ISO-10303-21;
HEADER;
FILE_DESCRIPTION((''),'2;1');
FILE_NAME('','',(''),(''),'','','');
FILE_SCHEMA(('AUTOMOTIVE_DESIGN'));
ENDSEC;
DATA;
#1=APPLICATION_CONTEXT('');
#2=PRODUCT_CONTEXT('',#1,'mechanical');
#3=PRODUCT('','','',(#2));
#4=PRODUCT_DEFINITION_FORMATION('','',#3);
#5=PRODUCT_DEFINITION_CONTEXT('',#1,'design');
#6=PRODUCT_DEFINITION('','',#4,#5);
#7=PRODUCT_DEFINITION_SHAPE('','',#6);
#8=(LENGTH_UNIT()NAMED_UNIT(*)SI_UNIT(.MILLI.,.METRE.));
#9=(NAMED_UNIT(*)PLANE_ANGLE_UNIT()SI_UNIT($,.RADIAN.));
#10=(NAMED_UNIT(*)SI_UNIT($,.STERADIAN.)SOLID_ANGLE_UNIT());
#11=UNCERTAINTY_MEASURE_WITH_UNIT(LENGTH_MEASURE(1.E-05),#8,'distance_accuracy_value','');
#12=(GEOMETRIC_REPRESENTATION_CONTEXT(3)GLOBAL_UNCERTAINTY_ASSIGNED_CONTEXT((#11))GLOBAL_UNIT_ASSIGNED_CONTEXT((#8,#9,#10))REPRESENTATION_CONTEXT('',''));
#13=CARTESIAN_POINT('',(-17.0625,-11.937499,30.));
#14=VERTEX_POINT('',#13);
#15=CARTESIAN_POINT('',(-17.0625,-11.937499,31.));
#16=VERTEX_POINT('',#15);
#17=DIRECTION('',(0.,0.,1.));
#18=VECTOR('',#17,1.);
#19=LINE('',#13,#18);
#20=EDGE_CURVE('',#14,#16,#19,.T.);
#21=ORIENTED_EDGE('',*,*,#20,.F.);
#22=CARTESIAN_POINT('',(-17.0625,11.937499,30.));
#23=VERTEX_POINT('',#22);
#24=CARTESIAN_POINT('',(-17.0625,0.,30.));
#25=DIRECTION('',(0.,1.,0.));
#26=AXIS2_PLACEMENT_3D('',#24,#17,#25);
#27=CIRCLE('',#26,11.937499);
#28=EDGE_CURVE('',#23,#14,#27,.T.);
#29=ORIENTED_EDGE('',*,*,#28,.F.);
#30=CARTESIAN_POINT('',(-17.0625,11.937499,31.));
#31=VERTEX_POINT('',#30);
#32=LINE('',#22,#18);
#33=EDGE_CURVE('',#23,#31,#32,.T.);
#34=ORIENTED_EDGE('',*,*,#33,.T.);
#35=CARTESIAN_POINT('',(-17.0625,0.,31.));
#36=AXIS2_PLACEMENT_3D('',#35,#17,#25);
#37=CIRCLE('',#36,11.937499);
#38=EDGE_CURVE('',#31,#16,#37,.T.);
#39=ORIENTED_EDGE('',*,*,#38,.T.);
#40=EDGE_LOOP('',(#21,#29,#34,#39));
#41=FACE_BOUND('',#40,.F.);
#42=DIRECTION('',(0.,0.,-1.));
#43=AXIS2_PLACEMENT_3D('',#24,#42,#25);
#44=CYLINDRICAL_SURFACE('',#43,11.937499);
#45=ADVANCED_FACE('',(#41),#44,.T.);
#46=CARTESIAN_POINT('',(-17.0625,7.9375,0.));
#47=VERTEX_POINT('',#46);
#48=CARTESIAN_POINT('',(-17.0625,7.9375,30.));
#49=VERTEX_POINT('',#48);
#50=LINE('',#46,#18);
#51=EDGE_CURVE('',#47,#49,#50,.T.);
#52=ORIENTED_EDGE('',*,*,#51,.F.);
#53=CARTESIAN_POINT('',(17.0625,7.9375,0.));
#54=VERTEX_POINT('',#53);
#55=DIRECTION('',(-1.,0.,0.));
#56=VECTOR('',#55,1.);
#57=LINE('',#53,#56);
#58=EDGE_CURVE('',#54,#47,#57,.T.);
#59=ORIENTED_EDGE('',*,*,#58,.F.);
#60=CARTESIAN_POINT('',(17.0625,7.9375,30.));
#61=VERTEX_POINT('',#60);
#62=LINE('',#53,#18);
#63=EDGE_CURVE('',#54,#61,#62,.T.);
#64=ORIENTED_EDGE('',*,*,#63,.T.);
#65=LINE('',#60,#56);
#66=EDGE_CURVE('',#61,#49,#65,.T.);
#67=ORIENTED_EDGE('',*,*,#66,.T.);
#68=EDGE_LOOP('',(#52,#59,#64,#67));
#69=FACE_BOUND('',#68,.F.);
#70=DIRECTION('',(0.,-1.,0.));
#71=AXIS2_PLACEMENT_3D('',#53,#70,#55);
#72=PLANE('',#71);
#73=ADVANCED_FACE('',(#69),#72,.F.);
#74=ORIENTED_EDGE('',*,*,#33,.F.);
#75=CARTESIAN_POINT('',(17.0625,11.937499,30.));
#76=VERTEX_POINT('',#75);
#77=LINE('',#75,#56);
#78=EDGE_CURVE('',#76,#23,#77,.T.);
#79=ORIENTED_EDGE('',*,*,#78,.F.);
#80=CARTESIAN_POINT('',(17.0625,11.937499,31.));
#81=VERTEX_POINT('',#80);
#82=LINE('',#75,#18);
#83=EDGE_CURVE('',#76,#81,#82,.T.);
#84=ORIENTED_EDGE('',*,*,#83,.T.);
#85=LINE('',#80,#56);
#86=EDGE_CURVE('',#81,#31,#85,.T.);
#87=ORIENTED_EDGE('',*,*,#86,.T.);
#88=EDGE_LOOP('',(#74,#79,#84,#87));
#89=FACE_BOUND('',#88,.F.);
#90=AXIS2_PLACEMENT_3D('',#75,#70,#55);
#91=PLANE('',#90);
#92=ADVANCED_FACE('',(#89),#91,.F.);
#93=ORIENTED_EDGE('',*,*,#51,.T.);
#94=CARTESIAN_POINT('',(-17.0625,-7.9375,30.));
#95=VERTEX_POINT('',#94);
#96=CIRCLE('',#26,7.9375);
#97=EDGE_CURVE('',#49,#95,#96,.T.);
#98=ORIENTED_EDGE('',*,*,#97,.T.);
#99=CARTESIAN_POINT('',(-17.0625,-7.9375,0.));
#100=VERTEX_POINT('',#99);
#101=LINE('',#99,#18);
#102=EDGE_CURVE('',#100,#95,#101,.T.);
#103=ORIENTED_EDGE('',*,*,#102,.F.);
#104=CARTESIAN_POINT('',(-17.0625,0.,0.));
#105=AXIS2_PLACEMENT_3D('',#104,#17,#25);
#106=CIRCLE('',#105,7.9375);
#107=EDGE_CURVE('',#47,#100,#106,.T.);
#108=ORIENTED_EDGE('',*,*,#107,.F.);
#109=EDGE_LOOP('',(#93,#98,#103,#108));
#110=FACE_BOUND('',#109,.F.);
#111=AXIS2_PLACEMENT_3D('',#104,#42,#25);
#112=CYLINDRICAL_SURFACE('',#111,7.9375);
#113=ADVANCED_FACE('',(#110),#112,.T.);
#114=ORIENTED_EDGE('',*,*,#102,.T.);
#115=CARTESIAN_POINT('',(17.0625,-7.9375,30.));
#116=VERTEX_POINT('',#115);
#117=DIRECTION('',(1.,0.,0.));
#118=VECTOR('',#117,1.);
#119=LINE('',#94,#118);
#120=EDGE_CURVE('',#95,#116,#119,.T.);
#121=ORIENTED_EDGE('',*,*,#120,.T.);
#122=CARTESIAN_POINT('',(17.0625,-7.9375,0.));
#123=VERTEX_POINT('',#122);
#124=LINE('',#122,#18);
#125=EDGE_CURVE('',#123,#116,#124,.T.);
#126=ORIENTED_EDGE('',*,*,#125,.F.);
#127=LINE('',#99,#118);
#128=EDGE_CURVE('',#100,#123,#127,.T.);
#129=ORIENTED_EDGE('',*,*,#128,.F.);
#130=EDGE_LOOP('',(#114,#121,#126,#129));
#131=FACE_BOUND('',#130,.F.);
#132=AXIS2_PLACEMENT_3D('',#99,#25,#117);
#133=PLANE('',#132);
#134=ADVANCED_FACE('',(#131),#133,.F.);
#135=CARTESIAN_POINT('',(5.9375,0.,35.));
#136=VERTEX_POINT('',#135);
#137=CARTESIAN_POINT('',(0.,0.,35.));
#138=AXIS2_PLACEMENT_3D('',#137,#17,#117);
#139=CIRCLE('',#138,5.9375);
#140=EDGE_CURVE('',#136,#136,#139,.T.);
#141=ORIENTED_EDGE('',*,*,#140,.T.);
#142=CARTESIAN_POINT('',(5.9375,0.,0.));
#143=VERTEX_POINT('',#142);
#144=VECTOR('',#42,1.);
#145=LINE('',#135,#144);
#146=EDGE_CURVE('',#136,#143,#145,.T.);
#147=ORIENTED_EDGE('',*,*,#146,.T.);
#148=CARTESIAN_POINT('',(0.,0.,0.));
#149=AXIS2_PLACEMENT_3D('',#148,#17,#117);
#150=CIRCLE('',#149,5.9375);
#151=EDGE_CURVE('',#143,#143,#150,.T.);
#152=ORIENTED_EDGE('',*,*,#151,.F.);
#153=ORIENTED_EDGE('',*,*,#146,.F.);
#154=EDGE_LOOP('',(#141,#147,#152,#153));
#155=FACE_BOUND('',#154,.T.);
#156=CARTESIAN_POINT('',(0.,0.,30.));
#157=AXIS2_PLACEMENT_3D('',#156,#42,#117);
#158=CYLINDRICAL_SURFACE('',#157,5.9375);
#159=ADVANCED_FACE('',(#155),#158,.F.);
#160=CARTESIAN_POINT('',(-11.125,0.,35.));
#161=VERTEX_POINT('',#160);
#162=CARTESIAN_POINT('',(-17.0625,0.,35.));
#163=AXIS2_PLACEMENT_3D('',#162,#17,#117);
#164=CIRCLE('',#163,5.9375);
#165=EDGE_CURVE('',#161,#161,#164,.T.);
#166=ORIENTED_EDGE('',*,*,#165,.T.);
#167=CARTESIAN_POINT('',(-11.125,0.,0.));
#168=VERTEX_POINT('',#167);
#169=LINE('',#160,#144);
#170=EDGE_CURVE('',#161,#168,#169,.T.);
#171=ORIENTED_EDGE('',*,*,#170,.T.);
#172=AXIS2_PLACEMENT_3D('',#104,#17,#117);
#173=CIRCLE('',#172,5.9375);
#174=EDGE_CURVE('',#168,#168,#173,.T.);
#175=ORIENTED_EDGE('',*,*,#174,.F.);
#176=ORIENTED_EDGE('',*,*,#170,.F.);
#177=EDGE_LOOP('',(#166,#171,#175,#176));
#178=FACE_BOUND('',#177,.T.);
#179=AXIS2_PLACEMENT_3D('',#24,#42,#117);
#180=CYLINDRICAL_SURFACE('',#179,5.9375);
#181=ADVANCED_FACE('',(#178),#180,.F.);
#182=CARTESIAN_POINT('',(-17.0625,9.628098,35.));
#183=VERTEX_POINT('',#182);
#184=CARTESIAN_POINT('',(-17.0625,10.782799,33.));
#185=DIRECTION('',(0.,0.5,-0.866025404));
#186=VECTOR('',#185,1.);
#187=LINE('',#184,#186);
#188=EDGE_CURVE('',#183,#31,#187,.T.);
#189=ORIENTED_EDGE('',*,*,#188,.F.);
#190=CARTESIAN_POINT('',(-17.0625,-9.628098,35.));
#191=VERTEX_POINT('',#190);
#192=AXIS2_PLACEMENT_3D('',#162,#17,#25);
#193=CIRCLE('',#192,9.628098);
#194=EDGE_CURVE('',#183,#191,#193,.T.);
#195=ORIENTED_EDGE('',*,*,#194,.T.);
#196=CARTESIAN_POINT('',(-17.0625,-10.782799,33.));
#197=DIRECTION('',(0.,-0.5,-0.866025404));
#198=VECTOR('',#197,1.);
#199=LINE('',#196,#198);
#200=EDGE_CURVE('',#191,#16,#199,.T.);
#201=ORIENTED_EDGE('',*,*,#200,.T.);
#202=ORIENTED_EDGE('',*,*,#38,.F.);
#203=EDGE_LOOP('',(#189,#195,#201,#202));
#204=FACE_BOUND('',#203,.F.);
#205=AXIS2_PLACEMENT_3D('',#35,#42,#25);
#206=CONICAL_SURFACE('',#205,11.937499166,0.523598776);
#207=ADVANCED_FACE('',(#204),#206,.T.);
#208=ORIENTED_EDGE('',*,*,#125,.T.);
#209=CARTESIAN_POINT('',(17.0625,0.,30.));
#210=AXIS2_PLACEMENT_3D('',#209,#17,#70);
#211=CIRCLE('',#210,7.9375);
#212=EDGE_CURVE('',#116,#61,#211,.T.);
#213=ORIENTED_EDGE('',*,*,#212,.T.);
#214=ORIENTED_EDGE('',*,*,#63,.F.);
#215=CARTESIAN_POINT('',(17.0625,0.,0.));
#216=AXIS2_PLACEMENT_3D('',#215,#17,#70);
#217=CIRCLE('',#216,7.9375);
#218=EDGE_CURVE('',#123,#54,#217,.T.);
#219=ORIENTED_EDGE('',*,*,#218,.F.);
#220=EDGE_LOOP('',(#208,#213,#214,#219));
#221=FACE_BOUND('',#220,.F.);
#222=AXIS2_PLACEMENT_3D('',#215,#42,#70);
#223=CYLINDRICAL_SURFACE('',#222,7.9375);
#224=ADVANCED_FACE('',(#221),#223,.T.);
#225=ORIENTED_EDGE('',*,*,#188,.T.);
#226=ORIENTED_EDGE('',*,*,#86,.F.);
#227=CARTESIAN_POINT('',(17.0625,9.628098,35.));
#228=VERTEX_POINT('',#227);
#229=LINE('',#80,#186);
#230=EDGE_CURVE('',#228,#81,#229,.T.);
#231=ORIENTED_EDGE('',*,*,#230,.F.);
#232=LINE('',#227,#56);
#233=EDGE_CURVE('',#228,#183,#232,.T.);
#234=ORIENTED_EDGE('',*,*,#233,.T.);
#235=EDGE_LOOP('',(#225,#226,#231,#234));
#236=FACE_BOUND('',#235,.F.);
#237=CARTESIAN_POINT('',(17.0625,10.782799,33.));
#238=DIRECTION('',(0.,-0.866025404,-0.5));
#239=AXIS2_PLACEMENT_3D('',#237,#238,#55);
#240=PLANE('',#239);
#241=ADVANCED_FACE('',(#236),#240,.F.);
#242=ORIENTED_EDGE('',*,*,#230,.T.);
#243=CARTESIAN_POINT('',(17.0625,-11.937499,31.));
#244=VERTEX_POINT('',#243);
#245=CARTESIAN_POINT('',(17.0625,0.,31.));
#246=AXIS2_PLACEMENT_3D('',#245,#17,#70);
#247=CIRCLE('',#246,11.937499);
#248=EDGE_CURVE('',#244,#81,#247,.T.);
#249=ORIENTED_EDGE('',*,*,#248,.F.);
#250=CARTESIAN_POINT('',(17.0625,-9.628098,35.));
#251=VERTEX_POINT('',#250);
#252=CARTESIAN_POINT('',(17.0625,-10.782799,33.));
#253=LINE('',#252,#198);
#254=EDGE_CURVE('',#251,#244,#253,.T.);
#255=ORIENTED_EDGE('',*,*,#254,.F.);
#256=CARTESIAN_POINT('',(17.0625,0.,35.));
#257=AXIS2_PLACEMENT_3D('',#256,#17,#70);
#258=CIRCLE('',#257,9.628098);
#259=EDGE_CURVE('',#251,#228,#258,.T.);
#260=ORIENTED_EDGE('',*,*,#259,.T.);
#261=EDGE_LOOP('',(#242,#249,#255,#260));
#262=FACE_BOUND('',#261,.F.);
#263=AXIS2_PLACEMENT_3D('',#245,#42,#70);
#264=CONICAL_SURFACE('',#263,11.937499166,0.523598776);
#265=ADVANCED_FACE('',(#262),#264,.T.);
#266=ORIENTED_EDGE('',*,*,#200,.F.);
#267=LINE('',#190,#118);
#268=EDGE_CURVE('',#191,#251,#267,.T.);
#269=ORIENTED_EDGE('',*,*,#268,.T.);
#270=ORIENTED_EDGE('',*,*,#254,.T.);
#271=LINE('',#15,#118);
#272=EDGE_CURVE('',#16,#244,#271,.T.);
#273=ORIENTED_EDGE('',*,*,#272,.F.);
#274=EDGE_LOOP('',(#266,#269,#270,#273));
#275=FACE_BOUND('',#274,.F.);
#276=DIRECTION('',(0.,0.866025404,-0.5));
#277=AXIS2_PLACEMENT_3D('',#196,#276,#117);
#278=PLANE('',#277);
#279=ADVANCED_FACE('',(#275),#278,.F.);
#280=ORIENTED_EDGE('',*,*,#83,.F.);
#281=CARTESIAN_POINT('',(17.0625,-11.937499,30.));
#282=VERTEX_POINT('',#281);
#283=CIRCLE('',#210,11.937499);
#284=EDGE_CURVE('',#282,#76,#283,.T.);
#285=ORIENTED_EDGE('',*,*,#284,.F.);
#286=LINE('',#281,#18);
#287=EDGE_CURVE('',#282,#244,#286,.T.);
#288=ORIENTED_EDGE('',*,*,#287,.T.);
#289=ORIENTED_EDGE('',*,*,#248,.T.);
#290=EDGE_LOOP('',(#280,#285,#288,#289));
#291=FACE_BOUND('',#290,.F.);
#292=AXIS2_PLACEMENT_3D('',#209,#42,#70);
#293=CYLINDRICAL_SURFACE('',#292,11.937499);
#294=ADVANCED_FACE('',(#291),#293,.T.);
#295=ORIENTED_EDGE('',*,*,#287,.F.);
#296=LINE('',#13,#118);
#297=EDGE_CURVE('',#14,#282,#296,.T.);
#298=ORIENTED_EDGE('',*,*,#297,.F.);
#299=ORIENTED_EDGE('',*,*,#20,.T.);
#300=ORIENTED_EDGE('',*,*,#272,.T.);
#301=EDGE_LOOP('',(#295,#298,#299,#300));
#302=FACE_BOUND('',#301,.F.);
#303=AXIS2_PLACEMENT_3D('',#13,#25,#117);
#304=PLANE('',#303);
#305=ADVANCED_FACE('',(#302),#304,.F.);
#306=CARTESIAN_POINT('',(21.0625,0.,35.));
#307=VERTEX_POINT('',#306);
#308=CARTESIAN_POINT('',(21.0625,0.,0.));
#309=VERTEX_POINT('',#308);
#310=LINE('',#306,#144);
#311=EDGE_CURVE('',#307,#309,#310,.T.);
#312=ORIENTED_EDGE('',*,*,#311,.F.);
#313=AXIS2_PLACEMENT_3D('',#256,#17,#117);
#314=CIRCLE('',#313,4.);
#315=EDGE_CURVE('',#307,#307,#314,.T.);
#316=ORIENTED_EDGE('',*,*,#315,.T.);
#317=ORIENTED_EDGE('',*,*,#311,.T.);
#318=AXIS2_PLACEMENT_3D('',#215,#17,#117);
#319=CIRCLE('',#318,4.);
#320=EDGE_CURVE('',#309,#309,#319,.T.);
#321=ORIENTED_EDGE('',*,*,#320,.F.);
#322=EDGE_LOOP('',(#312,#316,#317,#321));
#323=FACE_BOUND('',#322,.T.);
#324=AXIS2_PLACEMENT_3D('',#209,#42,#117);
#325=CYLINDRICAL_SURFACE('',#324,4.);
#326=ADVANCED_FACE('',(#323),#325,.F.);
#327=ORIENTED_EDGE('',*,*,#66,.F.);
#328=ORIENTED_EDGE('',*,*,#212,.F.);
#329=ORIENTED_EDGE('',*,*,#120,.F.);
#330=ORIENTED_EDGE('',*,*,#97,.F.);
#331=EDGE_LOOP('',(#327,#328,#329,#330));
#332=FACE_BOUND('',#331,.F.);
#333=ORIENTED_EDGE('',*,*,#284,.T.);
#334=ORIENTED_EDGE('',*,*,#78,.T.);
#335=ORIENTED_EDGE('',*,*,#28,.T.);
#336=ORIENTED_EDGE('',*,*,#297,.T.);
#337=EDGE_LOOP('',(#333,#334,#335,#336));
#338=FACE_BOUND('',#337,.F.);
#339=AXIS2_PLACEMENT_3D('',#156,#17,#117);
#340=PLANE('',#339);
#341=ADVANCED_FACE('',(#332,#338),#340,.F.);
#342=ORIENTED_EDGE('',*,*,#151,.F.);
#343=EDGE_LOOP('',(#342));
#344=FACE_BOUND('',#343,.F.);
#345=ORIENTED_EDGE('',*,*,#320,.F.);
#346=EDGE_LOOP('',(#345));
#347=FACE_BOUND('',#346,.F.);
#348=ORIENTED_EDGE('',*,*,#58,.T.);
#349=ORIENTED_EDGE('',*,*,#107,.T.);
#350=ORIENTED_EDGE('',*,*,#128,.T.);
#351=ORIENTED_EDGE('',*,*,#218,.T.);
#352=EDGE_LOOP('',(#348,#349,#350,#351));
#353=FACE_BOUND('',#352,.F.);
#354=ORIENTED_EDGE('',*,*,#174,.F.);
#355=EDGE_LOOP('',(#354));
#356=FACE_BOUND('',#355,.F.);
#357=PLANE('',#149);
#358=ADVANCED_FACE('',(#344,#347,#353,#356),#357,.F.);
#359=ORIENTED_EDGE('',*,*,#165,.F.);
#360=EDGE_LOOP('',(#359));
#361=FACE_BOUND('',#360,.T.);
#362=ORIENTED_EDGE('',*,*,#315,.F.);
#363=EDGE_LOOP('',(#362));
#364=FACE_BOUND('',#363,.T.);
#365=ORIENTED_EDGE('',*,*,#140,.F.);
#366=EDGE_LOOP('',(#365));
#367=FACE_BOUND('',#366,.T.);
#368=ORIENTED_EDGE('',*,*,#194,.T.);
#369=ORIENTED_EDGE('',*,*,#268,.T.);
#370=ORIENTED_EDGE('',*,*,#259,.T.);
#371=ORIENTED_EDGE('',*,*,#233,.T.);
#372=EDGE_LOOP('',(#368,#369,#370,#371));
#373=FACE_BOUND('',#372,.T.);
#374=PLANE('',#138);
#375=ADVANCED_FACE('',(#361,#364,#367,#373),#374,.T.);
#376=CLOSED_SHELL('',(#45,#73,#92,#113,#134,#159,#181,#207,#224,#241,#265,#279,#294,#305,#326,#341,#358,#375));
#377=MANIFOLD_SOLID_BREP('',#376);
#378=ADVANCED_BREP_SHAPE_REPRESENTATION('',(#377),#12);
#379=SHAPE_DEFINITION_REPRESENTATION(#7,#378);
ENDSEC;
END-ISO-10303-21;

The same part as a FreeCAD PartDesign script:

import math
import FreeCAD as App
import Part
import Sketcher
Q = App.Units.Quantity


def edges_at(feature, points):
    """Names of the edges that pass closest to the given points."""
    edges = feature.Shape.Edges
    near = lambda p: min(range(len(edges)), key=lambda i: edges[i].distToShape(Part.Vertex(*p))[0])
    return sorted({f"Edge{near(p) + 1}" for p in points})

doc = App.newDocument("Part")
body = doc.addObject("PartDesign::Body", "Body")

sketch1 = doc.addObject("Sketcher::SketchObject", "Sketch")
body.addObject(sketch1)
sketch1.AttachmentSupport = (doc.XY_Plane, [""])
sketch1.MapMode = "FlatFace"
sketch1.addGeometry([
    Part.LineSegment(App.Vector(-17.0625, -7.9375, 0), App.Vector(17.0625, -7.9375, 0)),
    Part.ArcOfCircle(Part.Circle(App.Vector(17.0625, 0, 0), App.Vector(0, 0, 1), 7.9375), math.radians(-90), math.radians(90)),
    Part.LineSegment(App.Vector(17.0625, 7.9375, 0), App.Vector(-17.0625, 7.9375, 0)),
    Part.ArcOfCircle(Part.Circle(App.Vector(-17.0625, 0, 0), App.Vector(0, 0, 1), 7.9375), math.radians(90), math.radians(270)),
    Part.Circle(App.Vector(-17.0625, 0, 0), App.Vector(0, 0, 1), 5.9375),
    Part.Circle(App.Vector(0, 0, 0), App.Vector(0, 0, 1), 5.9375),
    Part.Circle(App.Vector(17.0625, 0, 0), App.Vector(0, 0, 1), 4),
], False)
sketch1.addConstraint([
    Sketcher.Constraint("Tangent", 0, 2, 1, 1),
    Sketcher.Constraint("Tangent", 1, 2, 2, 1),
    Sketcher.Constraint("Tangent", 2, 2, 3, 1),
    Sketcher.Constraint("Tangent", 3, 2, 0, 1),
    Sketcher.Constraint("Horizontal", 0),
    Sketcher.Constraint("Horizontal", 2),
    Sketcher.Constraint("Coincident", 5, 3, -1, 1),
    Sketcher.Constraint("Coincident", 4, 3, 3, 3),
    Sketcher.Constraint("Coincident", 6, 3, 1, 3),
    Sketcher.Constraint("Equal", 4, 5),
    Sketcher.Constraint("Symmetric", 1, 3, 3, 3, -1, 1),
    Sketcher.Constraint("Diameter", 6, Q("8 mm")),
    Sketcher.Constraint("Diameter", 4, Q("11.875 mm")),
    Sketcher.Constraint("Radius", 1, Q("7.9375 mm")),
    Sketcher.Constraint("DistanceX", 0, 1, 0, 2, Q("34.125 mm")),
])
pad1 = doc.addObject("PartDesign::Pad", "Pad")
body.addObject(pad1)
pad1.Profile = sketch1
pad1.Length = 30

sketch2 = doc.addObject("Sketcher::SketchObject", "Sketch001")
body.addObject(sketch2)
sketch2.AttachmentSupport = (doc.XY_Plane, [""])
sketch2.MapMode = "FlatFace"
sketch2.AttachmentOffset = App.Placement(App.Vector(0, 0, 30), App.Rotation())
sketch2.addGeometry([
    Part.ArcOfCircle(Part.Circle(App.Vector(17.0625, 0, 0), App.Vector(0, 0, 1), 11.937499), math.radians(-90), math.radians(90)),
    Part.LineSegment(App.Vector(17.0625, 11.937499, 0), App.Vector(-17.0625, 11.937499, 0)),
    Part.ArcOfCircle(Part.Circle(App.Vector(-17.0625, 0, 0), App.Vector(0, 0, 1), 11.937499), math.radians(90), math.radians(270)),
    Part.LineSegment(App.Vector(-17.0625, -11.937499, 0), App.Vector(17.0625, -11.937499, 0)),
    Part.Circle(App.Vector(-17.0625, 0, 0), App.Vector(0, 0, 1), 5.9375),
    Part.Circle(App.Vector(0, 0, 0), App.Vector(0, 0, 1), 5.9375),
    Part.Circle(App.Vector(17.0625, 0, 0), App.Vector(0, 0, 1), 4),
], False)
sketch2.addConstraint([
    Sketcher.Constraint("Tangent", 0, 2, 1, 1),
    Sketcher.Constraint("Tangent", 1, 2, 2, 1),
    Sketcher.Constraint("Tangent", 2, 2, 3, 1),
    Sketcher.Constraint("Tangent", 3, 2, 0, 1),
    Sketcher.Constraint("Horizontal", 1),
    Sketcher.Constraint("Horizontal", 3),
    Sketcher.Constraint("Coincident", 5, 3, -1, 1),
    Sketcher.Constraint("Coincident", 4, 3, 2, 3),
    Sketcher.Constraint("Coincident", 6, 3, 0, 3),
    Sketcher.Constraint("Equal", 4, 5),
    Sketcher.Constraint("Symmetric", 0, 3, 2, 3, -1, 1),
    Sketcher.Constraint("Diameter", 6, Q("8 mm")),
    Sketcher.Constraint("Diameter", 4, Q("11.875 mm")),
    Sketcher.Constraint("Radius", 0, Q("11.937499 mm")),
    Sketcher.Constraint("DistanceX", 1, 2, 1, 1, Q("34.125 mm")),
])
pad2 = doc.addObject("PartDesign::Pad", "Pad001")
body.addObject(pad2)
pad2.Profile = sketch2
pad2.Length = 5
doc.recompute()

chamfer = doc.addObject("PartDesign::Chamfer", "Chamfer")
body.addObject(chamfer)
chamfer.Base = (pad2, edges_at(pad2, [
    (0, -11.937, 35),
    (-29, 0, 35),
    (0, 11.937, 35),
    (29, 0, 35),
]))
chamfer.ChamferType = "Two distances"
chamfer.Size = 2.309401
chamfer.Size2 = 4
chamfer.FlipDirection = True

doc.recompute()
